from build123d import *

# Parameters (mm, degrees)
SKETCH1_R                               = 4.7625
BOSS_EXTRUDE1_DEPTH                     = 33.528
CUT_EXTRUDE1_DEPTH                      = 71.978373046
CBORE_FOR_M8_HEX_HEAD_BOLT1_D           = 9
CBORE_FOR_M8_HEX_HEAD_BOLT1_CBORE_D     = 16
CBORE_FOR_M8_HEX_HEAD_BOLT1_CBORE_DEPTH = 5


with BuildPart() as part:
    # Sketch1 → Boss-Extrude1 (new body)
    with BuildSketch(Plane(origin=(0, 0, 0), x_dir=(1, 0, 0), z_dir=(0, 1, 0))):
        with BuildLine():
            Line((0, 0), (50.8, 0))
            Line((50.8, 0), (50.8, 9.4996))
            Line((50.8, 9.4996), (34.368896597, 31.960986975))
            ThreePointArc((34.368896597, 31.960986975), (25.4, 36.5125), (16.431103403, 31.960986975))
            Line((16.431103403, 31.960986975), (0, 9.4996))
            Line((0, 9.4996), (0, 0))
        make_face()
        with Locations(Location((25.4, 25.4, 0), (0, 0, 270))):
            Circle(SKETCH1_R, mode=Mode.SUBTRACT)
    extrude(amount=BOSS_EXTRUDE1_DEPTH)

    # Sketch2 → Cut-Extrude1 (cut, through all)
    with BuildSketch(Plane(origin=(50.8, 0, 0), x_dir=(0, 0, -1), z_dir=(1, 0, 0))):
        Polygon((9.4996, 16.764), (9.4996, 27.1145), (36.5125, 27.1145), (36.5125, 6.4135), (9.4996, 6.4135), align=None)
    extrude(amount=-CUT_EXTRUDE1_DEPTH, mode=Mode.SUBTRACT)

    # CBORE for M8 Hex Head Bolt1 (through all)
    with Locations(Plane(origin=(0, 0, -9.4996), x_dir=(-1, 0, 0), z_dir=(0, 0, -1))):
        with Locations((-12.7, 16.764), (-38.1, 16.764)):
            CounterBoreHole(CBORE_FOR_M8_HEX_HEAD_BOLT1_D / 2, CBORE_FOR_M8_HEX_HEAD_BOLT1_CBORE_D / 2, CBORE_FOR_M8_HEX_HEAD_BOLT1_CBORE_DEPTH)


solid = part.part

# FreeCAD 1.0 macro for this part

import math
import FreeCAD as App
import Part
import Sketcher
Q = App.Units.Quantity


def add_polygon(sketch, points):
    """Adds a closed chain of lines whose ends are joined by coincident constraints."""
    first, n = sketch.GeometryCount, len(points)
    for a, b in zip(points, points[1:] + points[:1]):
        sketch.addGeometry(Part.LineSegment(App.Vector(*a, 0), App.Vector(*b, 0)), False)
    for i in range(n):
        sketch.addConstraint(Sketcher.Constraint("Coincident", first + i, 2, first + (i + 1) % n, 1))

doc = App.newDocument("Part")
body = doc.addObject("PartDesign::Body", "Body")

# Sketch on XZ plane
sketch1 = body.newObject("Sketcher::SketchObject", "Sketch")
sketch1.AttachmentSupport = (doc.getObject("XZ_Plane"), [""])
sketch1.MapMode = "FlatFace"
sketch1.addGeometry([
    Part.LineSegment(App.Vector(0, 0, 0), App.Vector(50.8, 0, 0)),  # 0
    Part.LineSegment(App.Vector(50.8, 0, 0), App.Vector(50.8, -9.5, 0)),  # 1
    Part.LineSegment(App.Vector(50.8, -9.5, 0), App.Vector(34.4, -32, 0)),  # 2
    Part.ArcOfCircle(Part.Circle(App.Vector(25.4, -25.4, 0), App.Vector(0, 0, 1), 11.1), math.radians(-144), math.radians(-36)),  # 3
    Part.LineSegment(App.Vector(16.4, -32, 0), App.Vector(0, -9.5, 0)),  # 4
    Part.LineSegment(App.Vector(0, -9.5, 0), App.Vector(0, 0, 0)),  # 5
    Part.Circle(App.Vector(25.4, -25.4, 0), App.Vector(0, 0, 1), 4.8),  # 6
], False)
sketch1.addConstraint([
    Sketcher.Constraint("Coincident", 0, 2, 1, 1),
    Sketcher.Constraint("Coincident", 1, 2, 2, 1),
    Sketcher.Constraint("Tangent", 2, 2, 3, 2),
    Sketcher.Constraint("Tangent", 3, 1, 4, 1),
    Sketcher.Constraint("Coincident", 4, 2, 5, 1),
    Sketcher.Constraint("Coincident", 5, 2, 0, 1),
    Sketcher.Constraint("Horizontal", 0),
    Sketcher.Constraint("Vertical", 1),
    Sketcher.Constraint("Vertical", 5),
    Sketcher.Constraint("Coincident", 5, 2, -1, 1),
    Sketcher.Constraint("Coincident", 6, 3, 3, 3),
    Sketcher.Constraint("Horizontal", 2, 2, 3, 1),
    Sketcher.Constraint("Horizontal", 1, 2, 4, 2),
    Sketcher.Constraint("DistanceX", 0, 1, 0, 2, Q("2 in")),
    Sketcher.Constraint("Diameter", 6, Q("0.375 in")),
    Sketcher.Constraint("DistanceY", 3, 3, -1, 1, Q("1 in")),
    Sketcher.Constraint("Radius", 3, Q("0.4375 in")),
    Sketcher.Constraint("DistanceY", 1, 2, 1, 1, Q("0.374 in")),
])
pad1 = body.newObject("PartDesign::Pad", "Pad")
pad1.Profile = sketch1
pad1.Length = Q("1.32 in")
pad1.Reversed = True

# Sketch on YZ plane
sketch2 = body.newObject("Sketcher::SketchObject", "Sketch001")
sketch2.AttachmentSupport = (doc.getObject("YZ_Plane"), [""])
sketch2.MapMode = "FlatFace"
sketch2.AttachmentOffset = App.Placement(App.Vector(0, 0, 2 * 25.4), App.Rotation())
add_polygon(sketch2, [(27, -9), (6, -9), (6, -37), (27, -37)])  # lines 0-3
sketch2.addConstraint([
    Sketcher.Constraint("Horizontal", 0),
    Sketcher.Constraint("Vertical", 1),
    Sketcher.Constraint("Horizontal", 2),
    Sketcher.Constraint("Vertical", 3),
    Sketcher.Constraint("DistanceX", 0, 2, 0, 1, Q("0.815 in")),
    Sketcher.Constraint("DistanceY", 1, 2, 1, 1, Q("1.0635 in")),
    Sketcher.Constraint("DistanceY", 0, 2, -1, 1, Q("0.374 in")),
    Sketcher.Constraint("DistanceX", -1, 1, 0, 2, Q("0.2525 in")),
])
pocket1 = body.newObject("PartDesign::Pocket", "Pocket")
pocket1.Profile = sketch2
pocket1.Type = "ThroughAll"

# Sketch on XY plane
sketch3 = body.newObject("Sketcher::SketchObject", "Sketch002")
sketch3.AttachmentSupport = (doc.getObject("XY_Plane"), [""])
sketch3.MapMode = "FlatFace"
sketch3.AttachmentOffset = App.Placement(App.Vector(0, 0, -0.374 * 25.4), App.Rotation())
sketch3.addGeometry([
    Part.Circle(App.Vector(12.7, 16.8, 0), App.Vector(0, 0, 1), 4.5),
    Part.Circle(App.Vector(38.1, 16.8, 0), App.Vector(0, 0, 1), 4.5),
], False)
sketch3.addConstraint([
    Sketcher.Constraint("Equal", 0, 1),
    Sketcher.Constraint("Horizontal", 0, 3, 1, 3),
    Sketcher.Constraint("DistanceX", 0, 3, 1, 3, Q("1 in")),
    Sketcher.Constraint("DistanceX", -1, 1, 0, 3, Q("0.5 in")),
    Sketcher.Constraint("Diameter", 0, 9.0),
    Sketcher.Constraint("DistanceY", -1, 1, 0, 3, Q("0.66 in")),
])
doc.recompute()
hole = body.newObject("PartDesign::Hole", "Hole")
hole.Profile = sketch3
hole.ThreadType = "None"
hole.Diameter = 9
hole.DepthType = "ThroughAll"
hole.HoleCutType = "Counterbore"
hole.HoleCutDiameter = 16
hole.HoleCutDepth = 5
hole.Reversed = True

doc.recompute()
